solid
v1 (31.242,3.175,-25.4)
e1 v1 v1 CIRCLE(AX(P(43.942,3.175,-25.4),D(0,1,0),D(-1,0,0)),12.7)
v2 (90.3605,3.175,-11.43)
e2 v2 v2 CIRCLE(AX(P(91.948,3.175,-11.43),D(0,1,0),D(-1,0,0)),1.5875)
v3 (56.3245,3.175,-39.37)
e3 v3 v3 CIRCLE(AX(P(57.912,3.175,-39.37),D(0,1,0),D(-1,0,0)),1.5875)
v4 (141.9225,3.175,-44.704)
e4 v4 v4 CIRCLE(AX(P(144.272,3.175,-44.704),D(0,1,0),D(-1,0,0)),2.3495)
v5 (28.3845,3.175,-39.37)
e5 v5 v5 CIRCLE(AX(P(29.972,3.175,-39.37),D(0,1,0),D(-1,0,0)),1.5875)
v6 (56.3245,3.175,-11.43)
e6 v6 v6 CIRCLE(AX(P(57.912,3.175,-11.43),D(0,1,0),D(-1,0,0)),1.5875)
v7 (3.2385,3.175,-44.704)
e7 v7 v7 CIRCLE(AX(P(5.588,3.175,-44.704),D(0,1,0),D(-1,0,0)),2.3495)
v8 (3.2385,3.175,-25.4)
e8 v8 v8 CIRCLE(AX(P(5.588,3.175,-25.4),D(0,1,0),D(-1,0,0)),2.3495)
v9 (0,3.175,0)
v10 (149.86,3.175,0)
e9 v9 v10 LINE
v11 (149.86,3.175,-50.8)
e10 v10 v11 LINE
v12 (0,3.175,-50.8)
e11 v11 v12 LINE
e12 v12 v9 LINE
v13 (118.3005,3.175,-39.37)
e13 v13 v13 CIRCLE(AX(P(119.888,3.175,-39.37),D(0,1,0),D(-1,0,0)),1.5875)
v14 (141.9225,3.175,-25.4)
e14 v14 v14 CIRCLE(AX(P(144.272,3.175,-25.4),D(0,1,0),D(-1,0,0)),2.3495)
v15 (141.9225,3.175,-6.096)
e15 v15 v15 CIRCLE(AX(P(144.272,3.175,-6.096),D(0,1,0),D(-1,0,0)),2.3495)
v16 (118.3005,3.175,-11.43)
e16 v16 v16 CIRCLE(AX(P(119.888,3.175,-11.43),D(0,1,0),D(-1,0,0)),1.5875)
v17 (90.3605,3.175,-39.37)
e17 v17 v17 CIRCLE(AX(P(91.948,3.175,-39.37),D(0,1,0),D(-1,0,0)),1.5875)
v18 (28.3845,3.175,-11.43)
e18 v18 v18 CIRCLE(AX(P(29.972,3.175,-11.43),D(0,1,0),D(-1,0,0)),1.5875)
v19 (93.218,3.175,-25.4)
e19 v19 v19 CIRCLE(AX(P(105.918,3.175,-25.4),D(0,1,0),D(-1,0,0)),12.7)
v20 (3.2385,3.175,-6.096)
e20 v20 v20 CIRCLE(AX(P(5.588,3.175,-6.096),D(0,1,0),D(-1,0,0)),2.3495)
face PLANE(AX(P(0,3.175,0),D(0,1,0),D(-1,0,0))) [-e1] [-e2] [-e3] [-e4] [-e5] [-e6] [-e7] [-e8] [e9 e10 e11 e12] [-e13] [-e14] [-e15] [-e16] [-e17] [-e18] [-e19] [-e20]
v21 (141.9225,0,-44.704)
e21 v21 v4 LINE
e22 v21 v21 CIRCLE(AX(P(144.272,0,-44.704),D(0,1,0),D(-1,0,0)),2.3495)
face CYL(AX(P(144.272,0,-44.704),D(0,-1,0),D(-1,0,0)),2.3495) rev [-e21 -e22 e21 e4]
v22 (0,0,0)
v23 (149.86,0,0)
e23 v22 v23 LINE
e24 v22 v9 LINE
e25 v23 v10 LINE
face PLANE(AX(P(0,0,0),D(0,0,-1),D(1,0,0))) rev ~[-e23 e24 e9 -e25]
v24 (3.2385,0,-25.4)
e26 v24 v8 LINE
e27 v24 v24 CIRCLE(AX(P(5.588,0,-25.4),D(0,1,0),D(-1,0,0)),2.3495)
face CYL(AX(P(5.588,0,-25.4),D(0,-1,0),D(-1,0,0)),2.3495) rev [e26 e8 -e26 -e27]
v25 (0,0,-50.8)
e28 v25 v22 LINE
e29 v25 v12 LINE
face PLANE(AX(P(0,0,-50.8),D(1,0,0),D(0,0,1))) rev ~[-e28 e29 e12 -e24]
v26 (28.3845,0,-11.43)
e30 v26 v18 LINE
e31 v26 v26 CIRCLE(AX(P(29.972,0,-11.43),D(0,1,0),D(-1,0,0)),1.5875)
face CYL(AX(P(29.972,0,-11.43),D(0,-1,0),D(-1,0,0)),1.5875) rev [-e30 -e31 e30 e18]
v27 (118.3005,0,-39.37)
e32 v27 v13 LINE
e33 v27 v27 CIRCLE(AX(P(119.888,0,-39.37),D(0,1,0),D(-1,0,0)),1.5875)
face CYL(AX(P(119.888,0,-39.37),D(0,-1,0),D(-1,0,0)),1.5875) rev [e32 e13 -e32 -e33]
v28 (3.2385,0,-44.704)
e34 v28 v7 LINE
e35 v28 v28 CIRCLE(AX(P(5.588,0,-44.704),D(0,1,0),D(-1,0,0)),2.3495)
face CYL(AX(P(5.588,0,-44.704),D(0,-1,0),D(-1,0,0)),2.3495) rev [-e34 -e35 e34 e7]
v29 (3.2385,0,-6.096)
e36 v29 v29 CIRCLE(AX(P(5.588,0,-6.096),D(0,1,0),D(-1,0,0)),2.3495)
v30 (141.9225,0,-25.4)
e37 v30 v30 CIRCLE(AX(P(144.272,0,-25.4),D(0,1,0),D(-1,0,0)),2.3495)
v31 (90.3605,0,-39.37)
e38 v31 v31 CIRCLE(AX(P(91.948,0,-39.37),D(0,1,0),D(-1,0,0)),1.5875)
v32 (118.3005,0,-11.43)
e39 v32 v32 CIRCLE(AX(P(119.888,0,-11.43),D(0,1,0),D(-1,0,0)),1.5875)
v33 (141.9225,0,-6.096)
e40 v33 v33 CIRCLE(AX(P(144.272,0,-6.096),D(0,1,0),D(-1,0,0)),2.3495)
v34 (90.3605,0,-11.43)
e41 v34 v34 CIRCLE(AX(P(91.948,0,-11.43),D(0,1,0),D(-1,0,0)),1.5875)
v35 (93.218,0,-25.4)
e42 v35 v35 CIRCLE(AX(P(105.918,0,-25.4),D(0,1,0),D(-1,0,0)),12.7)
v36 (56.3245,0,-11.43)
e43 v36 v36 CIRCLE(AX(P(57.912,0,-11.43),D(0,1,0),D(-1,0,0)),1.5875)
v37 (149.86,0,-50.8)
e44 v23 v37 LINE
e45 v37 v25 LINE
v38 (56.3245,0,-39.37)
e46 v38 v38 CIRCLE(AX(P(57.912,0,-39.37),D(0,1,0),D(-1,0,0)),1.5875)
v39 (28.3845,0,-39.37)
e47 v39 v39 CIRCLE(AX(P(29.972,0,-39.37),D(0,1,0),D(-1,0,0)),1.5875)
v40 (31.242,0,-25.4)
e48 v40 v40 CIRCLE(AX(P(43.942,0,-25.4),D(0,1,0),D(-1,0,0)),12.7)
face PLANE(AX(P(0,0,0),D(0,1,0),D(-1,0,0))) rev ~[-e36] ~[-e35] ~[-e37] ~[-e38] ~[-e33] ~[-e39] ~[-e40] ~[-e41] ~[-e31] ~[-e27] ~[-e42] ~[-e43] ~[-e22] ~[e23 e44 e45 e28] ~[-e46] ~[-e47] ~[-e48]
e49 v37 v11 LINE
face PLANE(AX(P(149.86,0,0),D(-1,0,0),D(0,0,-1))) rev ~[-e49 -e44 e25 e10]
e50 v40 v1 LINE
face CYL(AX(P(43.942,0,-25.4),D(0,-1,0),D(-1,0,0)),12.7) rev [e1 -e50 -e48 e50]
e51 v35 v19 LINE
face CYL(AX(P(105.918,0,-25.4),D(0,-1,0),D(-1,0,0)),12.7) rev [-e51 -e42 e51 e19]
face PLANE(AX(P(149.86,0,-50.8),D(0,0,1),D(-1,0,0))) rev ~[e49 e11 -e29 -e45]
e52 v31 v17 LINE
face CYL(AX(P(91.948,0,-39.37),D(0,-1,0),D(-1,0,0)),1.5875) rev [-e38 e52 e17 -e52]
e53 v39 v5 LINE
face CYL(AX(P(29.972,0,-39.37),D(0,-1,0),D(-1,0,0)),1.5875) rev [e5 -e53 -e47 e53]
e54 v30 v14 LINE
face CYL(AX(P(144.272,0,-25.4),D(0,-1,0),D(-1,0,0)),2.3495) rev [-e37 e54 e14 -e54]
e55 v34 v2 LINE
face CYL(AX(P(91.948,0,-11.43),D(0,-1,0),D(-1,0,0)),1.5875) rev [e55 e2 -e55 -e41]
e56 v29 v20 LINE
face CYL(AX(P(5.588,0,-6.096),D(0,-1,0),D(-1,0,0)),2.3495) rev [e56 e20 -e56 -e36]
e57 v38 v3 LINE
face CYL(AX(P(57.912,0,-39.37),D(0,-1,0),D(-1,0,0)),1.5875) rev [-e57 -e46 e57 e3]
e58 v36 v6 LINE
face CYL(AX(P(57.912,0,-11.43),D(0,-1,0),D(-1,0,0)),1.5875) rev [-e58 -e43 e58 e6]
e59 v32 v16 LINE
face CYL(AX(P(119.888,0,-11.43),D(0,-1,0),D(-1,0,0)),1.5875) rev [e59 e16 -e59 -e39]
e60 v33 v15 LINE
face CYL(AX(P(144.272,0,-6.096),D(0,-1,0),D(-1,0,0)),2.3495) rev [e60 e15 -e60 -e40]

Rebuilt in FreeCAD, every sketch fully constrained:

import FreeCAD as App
import Part
import Sketcher
Q = App.Units.Quantity

doc = App.newDocument("Part")
body = doc.addObject("PartDesign::Body", "Body")

sketch1 = body.newObject("Sketcher::SketchObject", "Sketch")
sketch1.AttachmentSupport = (doc.getObject("XZ_Plane"), [""])
sketch1.MapMode = "FlatFace"
sketch1.addGeometry([
    Part.LineSegment(App.Vector(0, -50.8, 0), App.Vector(0, 0, 0)),
    Part.LineSegment(App.Vector(0, 0, 0), App.Vector(149.9, 0, 0)),
    Part.LineSegment(App.Vector(149.9, 0, 0), App.Vector(149.9, -50.8, 0)),
    Part.LineSegment(App.Vector(149.9, -50.8, 0), App.Vector(0, -50.8, 0)),
    Part.Circle(App.Vector(144.3, -44.7, 0), App.Vector(0, 0, 1), 2.3),
    Part.Circle(App.Vector(119.9, -39.4, 0), App.Vector(0, 0, 1), 1.6),
    Part.Circle(App.Vector(91.9, -39.4, 0), App.Vector(0, 0, 1), 1.6),
    Part.Circle(App.Vector(144.3, -25.4, 0), App.Vector(0, 0, 1), 2.3),
    Part.Circle(App.Vector(105.9, -25.4, 0), App.Vector(0, 0, 1), 12.7),
    Part.Circle(App.Vector(57.9, -39.4, 0), App.Vector(0, 0, 1), 1.6),
    Part.Circle(App.Vector(5.6, -44.7, 0), App.Vector(0, 0, 1), 2.3),
    Part.Circle(App.Vector(30, -39.4, 0), App.Vector(0, 0, 1), 1.6),
    Part.Circle(App.Vector(43.9, -25.4, 0), App.Vector(0, 0, 1), 12.7),
    Part.Circle(App.Vector(5.6, -25.4, 0), App.Vector(0, 0, 1), 2.3),
    Part.Circle(App.Vector(119.9, -11.4, 0), App.Vector(0, 0, 1), 1.6),
    Part.Circle(App.Vector(144.3, -6.1, 0), App.Vector(0, 0, 1), 2.3),
    Part.Circle(App.Vector(91.9, -11.4, 0), App.Vector(0, 0, 1), 1.6),
    Part.Circle(App.Vector(57.9, -11.4, 0), App.Vector(0, 0, 1), 1.6),
    Part.Circle(App.Vector(30, -11.4, 0), App.Vector(0, 0, 1), 1.6),
    Part.Circle(App.Vector(5.6, -6.1, 0), App.Vector(0, 0, 1), 2.3),
], False)
sketch1.addConstraint([
    Sketcher.Constraint("Coincident", 0, 2, 1, 1),
    Sketcher.Constraint("Coincident", 1, 2, 2, 1),
    Sketcher.Constraint("Coincident", 2, 2, 3, 1),
    Sketcher.Constraint("Coincident", 3, 2, 0, 1),
    Sketcher.Constraint("Vertical", 0),
    Sketcher.Constraint("Horizontal", 1),
    Sketcher.Constraint("Vertical", 2),
    Sketcher.Constraint("Horizontal", 3),
    Sketcher.Constraint("Coincident", 0, 2, -1, 1),
    Sketcher.Constraint("Equal", 5, 6),
    Sketcher.Constraint("Equal", 4, 7),
    Sketcher.Constraint("Equal", 6, 9),
    Sketcher.Constraint("Equal", 7, 10),
    Sketcher.Constraint("Equal", 9, 11),
    Sketcher.Constraint("Equal", 8, 12),
    Sketcher.Constraint("Equal", 10, 13),
    Sketcher.Constraint("Equal", 11, 14),
    Sketcher.Constraint("Equal", 13, 15),
    Sketcher.Constraint("Equal", 14, 16),
    Sketcher.Constraint("Equal", 16, 17),
    Sketcher.Constraint("Equal", 17, 18),
    Sketcher.Constraint("Equal", 15, 19),
    Sketcher.Constraint("Horizontal", 5, 3, 6, 3),
    Sketcher.Constraint("Horizontal", 7, 3, 8, 3),
    Sketcher.Constraint("Horizontal", 6, 3, 9, 3),
    Sketcher.Constraint("Horizontal", 4, 3, 10, 3),
    Sketcher.Constraint("Horizontal", 9, 3, 11, 3),
    Sketcher.Constraint("Horizontal", 8, 3, 12, 3),
    Sketcher.Constraint("Horizontal", 12, 3, 13, 3),
    Sketcher.Constraint("Horizontal", 14, 3, 16, 3),
    Sketcher.Constraint("Horizontal", 16, 3, 17, 3),
    Sketcher.Constraint("Horizontal", 17, 3, 18, 3),
    Sketcher.Constraint("Horizontal", 15, 3, 19, 3),
    Sketcher.Constraint("Vertical", 4, 3, 7, 3),
    Sketcher.Constraint("Vertical", 10, 3, 13, 3),
    Sketcher.Constraint("Vertical", 5, 3, 14, 3),
    Sketcher.Constraint("Vertical", 7, 3, 15, 3),
    Sketcher.Constraint("Vertical", 6, 3, 16, 3),
    Sketcher.Constraint("Vertical", 9, 3, 17, 3),
    Sketcher.Constraint("Vertical", 11, 3, 18, 3),
    Sketcher.Constraint("Vertical", 13, 3, 19, 3),
    Sketcher.Constraint("Diameter", 8, Q("1 in")),
    Sketcher.Constraint("DistanceY", 0, 1, 0, 2, Q("2 in")),
    Sketcher.Constraint("Diameter", 4, Q("0.185 in")),
    Sketcher.Constraint("Diameter", 5, Q("0.125 in")),
    Sketcher.Constraint("DistanceX", 1, 1, 1, 2, Q("5.9 in")),
    Sketcher.Constraint("DistanceY", 7, 3, -1, 1, Q("1 in")),
    Sketcher.Constraint("DistanceX", -1, 1, 10, 3, Q("0.22 in")),
    Sketcher.Constraint("DistanceY", 15, 3, -1, 1, Q("0.24 in")),
    Sketcher.Constraint("DistanceY", 5, 3, 7, 3, Q("0.55 in")),
    Sketcher.Constraint("DistanceX", 8, 3, 5, 3, Q("0.55 in")),
    Sketcher.Constraint("DistanceX", 6, 3, 8, 3, Q("0.55 in")),
    Sketcher.Constraint("DistanceX", 12, 3, 9, 3, Q("0.55 in")),
    Sketcher.Constraint("DistanceX", 11, 3, 12, 3, Q("0.55 in")),
    Sketcher.Constraint("DistanceY", 8, 3, 14, 3, Q("0.55 in")),
    Sketcher.Constraint("DistanceX", 15, 3, 1, 2, Q("0.22 in")),
    Sketcher.Constraint("DistanceY", 2, 2, 4, 3, Q("0.24 in")),
    Sketcher.Constraint("DistanceX", 9, 3, 4, 3, Q("3.4 in")),
    Sketcher.Constraint("DistanceX", 10, 3, 6, 3, Q("3.4 in")),
])
pad1 = body.newObject("PartDesign::Pad", "Pad")
pad1.Profile = sketch1
pad1.Length = Q("0.125 in")
pad1.Reversed = True

doc.recompute()
